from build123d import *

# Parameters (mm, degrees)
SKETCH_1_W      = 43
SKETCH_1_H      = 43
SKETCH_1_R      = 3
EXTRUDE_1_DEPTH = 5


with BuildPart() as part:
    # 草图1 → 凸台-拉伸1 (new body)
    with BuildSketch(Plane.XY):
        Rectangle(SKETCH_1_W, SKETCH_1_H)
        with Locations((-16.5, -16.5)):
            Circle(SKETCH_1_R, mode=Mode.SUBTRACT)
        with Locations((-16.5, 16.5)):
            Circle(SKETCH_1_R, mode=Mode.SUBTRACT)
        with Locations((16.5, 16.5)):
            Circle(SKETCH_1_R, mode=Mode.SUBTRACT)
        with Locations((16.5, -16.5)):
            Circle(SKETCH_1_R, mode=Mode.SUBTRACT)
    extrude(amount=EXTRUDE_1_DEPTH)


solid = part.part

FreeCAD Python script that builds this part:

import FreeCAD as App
import Part
import Sketcher
Q = App.Units.Quantity

doc = App.newDocument("Part")
body = doc.addObject("PartDesign::Body", "Body")

sketch1 = doc.addObject("Sketcher::SketchObject", "Sketch")
body.addObject(sketch1)
sketch1.AttachmentSupport = (doc.XY_Plane, [""])
sketch1.MapMode = "FlatFace"
sketch1.addGeometry([
    Part.LineSegment(App.Vector(-21.5, 21.5, 0), App.Vector(-21.5, -21.5, 0)),
    Part.LineSegment(App.Vector(-21.5, -21.5, 0), App.Vector(21.5, -21.5, 0)),
    Part.LineSegment(App.Vector(21.5, -21.5, 0), App.Vector(21.5, 21.5, 0)),
    Part.LineSegment(App.Vector(21.5, 21.5, 0), App.Vector(-21.5, 21.5, 0)),
    Part.Circle(App.Vector(-16.5, -16.5, 0), App.Vector(0, 0, 1), 3),
    Part.Circle(App.Vector(16.5, -16.5, 0), App.Vector(0, 0, 1), 3),
    Part.Circle(App.Vector(-16.5, 16.5, 0), App.Vector(0, 0, 1), 3),
    Part.Circle(App.Vector(16.5, 16.5, 0), App.Vector(0, 0, 1), 3),
], False)
sketch1.addConstraint([
    Sketcher.Constraint("Coincident", 0, 2, 1, 1),
    Sketcher.Constraint("Coincident", 1, 2, 2, 1),
    Sketcher.Constraint("Coincident", 2, 2, 3, 1),
    Sketcher.Constraint("Coincident", 3, 2, 0, 1),
    Sketcher.Constraint("Vertical", 0),
    Sketcher.Constraint("Horizontal", 1),
    Sketcher.Constraint("Vertical", 2),
    Sketcher.Constraint("Horizontal", 3),
    Sketcher.Constraint("Equal", 4, 5),
    Sketcher.Constraint("Equal", 5, 6),
    Sketcher.Constraint("Equal", 6, 7),
    Sketcher.Constraint("Symmetric", 5, 3, 6, 3, -1, 1),
    Sketcher.Constraint("Symmetric", 4, 3, 7, 3, -1, 1),
    Sketcher.Constraint("Symmetric", 0, 2, 2, 2, -1, 1),
    Sketcher.Constraint("Symmetric", 4, 3, 5, 3, -2),
    Sketcher.Constraint("Equal", 3, 0),
    Sketcher.Constraint("Diameter", 4, Q("6 mm")),
    Sketcher.Constraint("DistanceX", 1, 1, 1, 2, Q("43 mm")),
    Sketcher.Constraint("DistanceX", 4, 3, 5, 3, Q("33 mm")),
    Sketcher.Constraint("DistanceY", 4, 3, 6, 3, Q("33 mm")),
])
pad1 = doc.addObject("PartDesign::Pad", "Pad")
body.addObject(pad1)
pad1.Profile = sketch1
pad1.Length = 5

doc.recompute()
